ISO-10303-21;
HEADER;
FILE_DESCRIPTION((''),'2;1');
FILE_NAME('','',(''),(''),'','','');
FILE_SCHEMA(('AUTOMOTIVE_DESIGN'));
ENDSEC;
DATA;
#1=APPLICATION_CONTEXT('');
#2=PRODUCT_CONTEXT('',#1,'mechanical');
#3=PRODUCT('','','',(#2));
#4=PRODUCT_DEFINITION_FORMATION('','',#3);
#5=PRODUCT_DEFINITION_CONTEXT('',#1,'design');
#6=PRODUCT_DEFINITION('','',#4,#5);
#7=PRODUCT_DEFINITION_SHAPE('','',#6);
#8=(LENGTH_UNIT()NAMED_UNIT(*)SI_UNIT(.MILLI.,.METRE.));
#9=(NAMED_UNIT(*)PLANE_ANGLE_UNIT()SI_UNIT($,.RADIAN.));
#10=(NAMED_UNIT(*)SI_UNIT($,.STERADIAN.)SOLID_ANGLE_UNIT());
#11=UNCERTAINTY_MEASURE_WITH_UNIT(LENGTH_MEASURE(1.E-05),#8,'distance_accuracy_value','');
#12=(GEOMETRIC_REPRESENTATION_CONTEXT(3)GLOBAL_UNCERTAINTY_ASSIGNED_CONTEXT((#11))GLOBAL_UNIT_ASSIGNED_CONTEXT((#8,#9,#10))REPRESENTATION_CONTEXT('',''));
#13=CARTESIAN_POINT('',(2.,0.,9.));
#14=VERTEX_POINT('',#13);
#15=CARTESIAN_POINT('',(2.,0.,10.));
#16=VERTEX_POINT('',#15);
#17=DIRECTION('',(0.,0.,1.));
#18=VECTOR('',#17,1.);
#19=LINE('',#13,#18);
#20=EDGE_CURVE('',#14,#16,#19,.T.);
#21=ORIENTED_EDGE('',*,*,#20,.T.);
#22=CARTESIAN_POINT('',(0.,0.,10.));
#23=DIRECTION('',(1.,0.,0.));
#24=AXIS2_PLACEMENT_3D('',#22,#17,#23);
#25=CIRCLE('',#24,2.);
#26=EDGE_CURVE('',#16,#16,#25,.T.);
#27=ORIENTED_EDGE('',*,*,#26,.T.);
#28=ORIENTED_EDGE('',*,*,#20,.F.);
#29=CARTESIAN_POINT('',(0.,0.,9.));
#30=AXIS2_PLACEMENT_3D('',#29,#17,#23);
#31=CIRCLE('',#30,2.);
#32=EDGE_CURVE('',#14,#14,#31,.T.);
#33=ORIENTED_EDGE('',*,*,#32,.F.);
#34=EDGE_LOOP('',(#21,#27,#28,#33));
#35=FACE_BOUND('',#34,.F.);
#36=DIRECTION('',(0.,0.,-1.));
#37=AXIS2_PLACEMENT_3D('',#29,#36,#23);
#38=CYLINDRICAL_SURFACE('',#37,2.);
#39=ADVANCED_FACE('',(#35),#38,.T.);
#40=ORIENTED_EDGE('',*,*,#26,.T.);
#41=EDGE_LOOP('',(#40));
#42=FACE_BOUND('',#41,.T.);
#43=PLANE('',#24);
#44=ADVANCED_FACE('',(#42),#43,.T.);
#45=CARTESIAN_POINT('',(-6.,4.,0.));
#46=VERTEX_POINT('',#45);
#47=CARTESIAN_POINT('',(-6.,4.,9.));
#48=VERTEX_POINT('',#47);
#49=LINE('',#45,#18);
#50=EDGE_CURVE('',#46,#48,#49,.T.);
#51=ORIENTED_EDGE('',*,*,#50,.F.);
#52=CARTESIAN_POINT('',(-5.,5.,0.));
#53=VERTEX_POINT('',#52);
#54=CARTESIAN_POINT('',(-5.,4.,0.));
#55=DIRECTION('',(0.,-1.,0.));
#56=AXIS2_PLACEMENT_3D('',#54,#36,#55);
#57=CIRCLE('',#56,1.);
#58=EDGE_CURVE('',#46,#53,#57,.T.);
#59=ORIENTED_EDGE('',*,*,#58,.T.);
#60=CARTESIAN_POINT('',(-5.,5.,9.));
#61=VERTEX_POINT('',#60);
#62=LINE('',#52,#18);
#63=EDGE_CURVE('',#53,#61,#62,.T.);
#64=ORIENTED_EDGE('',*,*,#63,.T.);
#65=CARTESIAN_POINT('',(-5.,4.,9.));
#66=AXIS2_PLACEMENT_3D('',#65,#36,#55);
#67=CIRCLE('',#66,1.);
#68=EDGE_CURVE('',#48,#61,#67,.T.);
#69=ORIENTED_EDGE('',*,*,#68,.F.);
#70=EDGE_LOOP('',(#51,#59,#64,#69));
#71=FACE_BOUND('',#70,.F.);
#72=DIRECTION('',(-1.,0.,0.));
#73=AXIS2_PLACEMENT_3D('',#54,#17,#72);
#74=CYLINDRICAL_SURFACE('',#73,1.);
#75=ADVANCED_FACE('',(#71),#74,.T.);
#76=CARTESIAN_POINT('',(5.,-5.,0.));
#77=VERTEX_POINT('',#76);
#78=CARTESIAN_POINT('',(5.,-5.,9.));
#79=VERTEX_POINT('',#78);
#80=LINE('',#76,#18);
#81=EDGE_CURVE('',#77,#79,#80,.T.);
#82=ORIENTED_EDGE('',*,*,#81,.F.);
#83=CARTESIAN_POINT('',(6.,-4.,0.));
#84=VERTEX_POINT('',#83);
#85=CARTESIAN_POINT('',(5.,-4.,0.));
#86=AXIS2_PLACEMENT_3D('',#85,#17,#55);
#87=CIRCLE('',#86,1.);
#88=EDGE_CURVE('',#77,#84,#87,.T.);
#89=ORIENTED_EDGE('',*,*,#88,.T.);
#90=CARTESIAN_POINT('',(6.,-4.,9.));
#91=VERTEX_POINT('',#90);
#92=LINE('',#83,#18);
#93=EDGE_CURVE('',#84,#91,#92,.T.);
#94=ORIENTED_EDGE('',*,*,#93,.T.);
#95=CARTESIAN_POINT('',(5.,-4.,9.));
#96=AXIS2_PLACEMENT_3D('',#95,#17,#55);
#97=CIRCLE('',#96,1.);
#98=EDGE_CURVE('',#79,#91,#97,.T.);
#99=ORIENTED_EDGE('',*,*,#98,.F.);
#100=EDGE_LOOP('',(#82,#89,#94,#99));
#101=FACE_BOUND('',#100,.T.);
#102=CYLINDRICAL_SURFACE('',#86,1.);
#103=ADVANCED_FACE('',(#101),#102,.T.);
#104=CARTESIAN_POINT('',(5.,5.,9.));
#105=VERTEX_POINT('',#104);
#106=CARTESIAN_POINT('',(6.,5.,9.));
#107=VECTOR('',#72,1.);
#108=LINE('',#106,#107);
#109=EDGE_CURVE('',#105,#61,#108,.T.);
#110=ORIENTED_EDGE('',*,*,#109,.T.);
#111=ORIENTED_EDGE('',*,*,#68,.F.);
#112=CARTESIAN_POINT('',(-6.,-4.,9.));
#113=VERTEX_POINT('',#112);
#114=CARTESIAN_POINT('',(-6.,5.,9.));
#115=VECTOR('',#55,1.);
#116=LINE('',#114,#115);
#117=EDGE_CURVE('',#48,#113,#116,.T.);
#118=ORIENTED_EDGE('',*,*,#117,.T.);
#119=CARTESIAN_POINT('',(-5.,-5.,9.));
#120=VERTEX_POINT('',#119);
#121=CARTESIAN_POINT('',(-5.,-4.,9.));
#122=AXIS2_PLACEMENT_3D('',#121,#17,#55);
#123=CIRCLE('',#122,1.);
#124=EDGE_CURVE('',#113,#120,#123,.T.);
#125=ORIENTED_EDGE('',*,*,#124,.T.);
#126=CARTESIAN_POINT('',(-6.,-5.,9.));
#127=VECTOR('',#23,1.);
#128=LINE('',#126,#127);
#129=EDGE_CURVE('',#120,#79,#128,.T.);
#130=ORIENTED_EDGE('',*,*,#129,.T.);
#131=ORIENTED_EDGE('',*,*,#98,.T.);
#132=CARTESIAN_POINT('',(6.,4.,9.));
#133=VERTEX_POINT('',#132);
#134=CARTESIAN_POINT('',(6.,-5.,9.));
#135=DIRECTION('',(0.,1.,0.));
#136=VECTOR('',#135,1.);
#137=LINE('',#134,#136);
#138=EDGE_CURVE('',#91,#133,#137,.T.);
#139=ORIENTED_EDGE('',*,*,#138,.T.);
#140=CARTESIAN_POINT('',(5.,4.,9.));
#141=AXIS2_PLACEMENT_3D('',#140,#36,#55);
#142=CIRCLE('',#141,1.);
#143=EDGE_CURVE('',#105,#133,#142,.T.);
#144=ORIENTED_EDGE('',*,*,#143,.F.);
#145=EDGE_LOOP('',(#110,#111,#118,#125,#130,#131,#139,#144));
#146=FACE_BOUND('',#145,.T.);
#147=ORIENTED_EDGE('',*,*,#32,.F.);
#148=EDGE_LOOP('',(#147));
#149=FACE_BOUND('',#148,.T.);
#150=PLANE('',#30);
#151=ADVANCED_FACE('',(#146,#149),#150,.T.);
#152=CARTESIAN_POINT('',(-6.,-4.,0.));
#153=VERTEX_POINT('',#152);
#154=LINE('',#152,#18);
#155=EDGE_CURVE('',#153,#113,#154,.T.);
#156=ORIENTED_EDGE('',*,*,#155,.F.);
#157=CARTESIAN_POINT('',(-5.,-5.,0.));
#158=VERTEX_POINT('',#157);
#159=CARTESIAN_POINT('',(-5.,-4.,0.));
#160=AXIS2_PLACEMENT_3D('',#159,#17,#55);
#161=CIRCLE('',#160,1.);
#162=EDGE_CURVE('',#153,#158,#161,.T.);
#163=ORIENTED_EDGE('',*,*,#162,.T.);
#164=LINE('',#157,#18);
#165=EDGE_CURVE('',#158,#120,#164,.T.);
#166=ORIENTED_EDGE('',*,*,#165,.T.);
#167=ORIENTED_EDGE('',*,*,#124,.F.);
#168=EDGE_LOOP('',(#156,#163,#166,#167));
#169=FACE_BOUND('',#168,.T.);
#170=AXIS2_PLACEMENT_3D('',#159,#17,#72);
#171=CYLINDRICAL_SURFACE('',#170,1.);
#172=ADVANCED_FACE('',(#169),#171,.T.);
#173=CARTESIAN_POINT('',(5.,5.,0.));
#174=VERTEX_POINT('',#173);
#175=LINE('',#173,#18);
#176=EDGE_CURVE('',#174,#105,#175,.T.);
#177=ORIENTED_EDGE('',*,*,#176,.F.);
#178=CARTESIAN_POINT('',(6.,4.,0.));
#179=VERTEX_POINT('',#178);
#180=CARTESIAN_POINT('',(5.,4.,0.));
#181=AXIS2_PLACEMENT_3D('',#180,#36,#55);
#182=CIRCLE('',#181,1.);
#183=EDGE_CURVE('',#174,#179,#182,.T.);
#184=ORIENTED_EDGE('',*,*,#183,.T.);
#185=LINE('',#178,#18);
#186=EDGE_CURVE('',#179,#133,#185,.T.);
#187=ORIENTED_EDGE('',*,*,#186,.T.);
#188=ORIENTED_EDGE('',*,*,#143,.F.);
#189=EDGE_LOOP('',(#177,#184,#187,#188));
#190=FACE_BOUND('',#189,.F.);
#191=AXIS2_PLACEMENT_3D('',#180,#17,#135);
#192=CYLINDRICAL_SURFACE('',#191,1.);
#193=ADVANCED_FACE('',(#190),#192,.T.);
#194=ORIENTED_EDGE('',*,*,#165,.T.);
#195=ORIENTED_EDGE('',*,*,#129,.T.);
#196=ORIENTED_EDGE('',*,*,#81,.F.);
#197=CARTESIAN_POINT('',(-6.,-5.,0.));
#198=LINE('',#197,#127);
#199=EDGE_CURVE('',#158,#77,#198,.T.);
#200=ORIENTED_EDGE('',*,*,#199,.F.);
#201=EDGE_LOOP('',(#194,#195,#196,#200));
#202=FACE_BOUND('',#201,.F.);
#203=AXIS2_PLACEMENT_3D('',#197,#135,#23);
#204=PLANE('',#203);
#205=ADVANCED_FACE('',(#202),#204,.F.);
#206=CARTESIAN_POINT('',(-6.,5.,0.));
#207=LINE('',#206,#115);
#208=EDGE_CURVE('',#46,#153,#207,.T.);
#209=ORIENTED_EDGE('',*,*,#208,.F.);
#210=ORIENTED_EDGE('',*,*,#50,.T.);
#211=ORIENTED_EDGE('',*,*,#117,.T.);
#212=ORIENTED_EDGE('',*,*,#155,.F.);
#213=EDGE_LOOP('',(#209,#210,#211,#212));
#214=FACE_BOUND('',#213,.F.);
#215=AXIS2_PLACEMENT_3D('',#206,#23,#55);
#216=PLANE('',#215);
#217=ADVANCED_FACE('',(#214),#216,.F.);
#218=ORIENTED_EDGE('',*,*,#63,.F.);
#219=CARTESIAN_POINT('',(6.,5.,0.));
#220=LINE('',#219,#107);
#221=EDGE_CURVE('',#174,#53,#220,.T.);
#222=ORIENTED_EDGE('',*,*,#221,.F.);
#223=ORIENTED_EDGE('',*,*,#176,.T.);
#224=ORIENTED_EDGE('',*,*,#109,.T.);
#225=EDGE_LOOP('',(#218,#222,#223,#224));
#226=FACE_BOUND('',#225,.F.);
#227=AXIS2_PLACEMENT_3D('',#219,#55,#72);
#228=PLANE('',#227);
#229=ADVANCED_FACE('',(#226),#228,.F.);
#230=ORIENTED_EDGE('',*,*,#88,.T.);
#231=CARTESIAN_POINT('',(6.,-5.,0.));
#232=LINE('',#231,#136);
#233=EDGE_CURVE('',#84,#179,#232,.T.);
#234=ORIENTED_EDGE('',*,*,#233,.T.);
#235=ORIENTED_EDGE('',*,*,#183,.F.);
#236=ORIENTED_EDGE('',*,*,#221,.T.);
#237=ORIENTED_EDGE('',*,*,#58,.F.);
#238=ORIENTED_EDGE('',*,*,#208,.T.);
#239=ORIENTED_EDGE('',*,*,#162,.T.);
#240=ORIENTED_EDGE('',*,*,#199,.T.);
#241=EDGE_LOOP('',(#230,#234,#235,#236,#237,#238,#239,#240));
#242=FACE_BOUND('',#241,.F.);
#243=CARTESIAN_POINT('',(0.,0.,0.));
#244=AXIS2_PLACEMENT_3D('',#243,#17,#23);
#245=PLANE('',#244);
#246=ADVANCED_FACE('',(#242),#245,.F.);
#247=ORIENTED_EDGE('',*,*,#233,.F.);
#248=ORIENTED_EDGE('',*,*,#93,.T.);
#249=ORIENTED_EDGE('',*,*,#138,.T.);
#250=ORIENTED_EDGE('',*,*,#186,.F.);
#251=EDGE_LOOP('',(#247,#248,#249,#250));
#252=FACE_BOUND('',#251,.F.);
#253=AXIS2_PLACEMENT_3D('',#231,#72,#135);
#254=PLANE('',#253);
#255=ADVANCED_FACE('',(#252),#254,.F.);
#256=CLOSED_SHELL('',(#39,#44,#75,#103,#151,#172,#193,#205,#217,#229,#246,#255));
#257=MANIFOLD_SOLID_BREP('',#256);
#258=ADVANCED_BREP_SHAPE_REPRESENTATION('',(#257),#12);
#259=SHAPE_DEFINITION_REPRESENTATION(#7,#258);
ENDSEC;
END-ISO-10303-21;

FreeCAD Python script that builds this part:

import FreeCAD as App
import Part
import Sketcher

V = App.Vector
Q = App.Units.Quantity


def edges_at(feature, points):
    """Names of the edges that pass closest to the given points."""
    edges = feature.Shape.Edges
    near = lambda p: min(range(len(edges)), key=lambda i: edges[i].distToShape(Part.Vertex(*p))[0])
    return sorted({f"Edge{near(p) + 1}" for p in points})

doc = App.newDocument("Part")
params = doc.addObject("Spreadsheet::Sheet", "Params")
for row, (alias, value) in enumerate([
    ("sketch1_width", "12 mm"),
    ("sketch1_height", "10 mm"),
    ("pad1_length", "9 mm"),
    ("sketch2_diameter", "4 mm"),
    ("pad2_length", "1 mm"),
    ("fillet_radius", "1 mm"),
], start=1):
    params.set(f"A{row}", alias)
    params.set(f"B{row}", "=" + value)
    params.setAlias(f"B{row}", alias)

body = doc.addObject("PartDesign::Body", "Body")

# Sketch on XY plane
sketch1 = body.newObject("Sketcher::SketchObject", "Sketch")
sketch1.AttachmentSupport = (doc.getObject("XY_Plane"), [""])
sketch1.MapMode = "FlatFace"
sketch1.addGeometry(Part.LineSegment(V(-6, 5, 0), V(-6, -5, 0)), False)
sketch1.addGeometry(Part.LineSegment(V(-6, -5, 0), V(6, -5, 0)), False)
sketch1.addGeometry(Part.LineSegment(V(6, -5, 0), V(6, 5, 0)), False)
sketch1.addGeometry(Part.LineSegment(V(6, 5, 0), V(-6, 5, 0)), False)
sketch1.addConstraint(Sketcher.Constraint("Coincident", 0, 2, 1, 1))
sketch1.addConstraint(Sketcher.Constraint("Coincident", 1, 2, 2, 1))
sketch1.addConstraint(Sketcher.Constraint("Coincident", 2, 2, 3, 1))
sketch1.addConstraint(Sketcher.Constraint("Coincident", 3, 2, 0, 1))
sketch1.addConstraint(Sketcher.Constraint("Vertical", 0))
sketch1.addConstraint(Sketcher.Constraint("Horizontal", 1))
sketch1.addConstraint(Sketcher.Constraint("Vertical", 2))
sketch1.addConstraint(Sketcher.Constraint("Horizontal", 3))
sketch1.addConstraint(Sketcher.Constraint("Symmetric", 0, 2, 2, 2, -1, 1))
sketch1.addConstraint(Sketcher.Constraint("DistanceX", 1, 1, 1, 2, Q("12 mm")))
sketch1.addConstraint(Sketcher.Constraint("DistanceY", 0, 2, 0, 1, Q("10 mm")))
sketch1.setExpression("Constraints[9]", "Params.sketch1_width")
sketch1.setExpression("Constraints[10]", "Params.sketch1_height")
pad1 = body.newObject("PartDesign::Pad", "Pad")
pad1.Profile = sketch1
pad1.setExpression("Length", "Params.pad1_length")

# Sketch on XY plane
sketch2 = body.newObject("Sketcher::SketchObject", "Sketch001")
sketch2.AttachmentSupport = (doc.getObject("XY_Plane"), [""])
sketch2.MapMode = "FlatFace"
sketch2.AttachmentOffset = App.Placement(V(0, 0, 9), App.Rotation())
sketch2.addGeometry(Part.Circle(V(0, 0, 0), V(0, 0, 1), 2), False)
sketch2.addConstraint(Sketcher.Constraint("Coincident", 0, 3, -1, 1))
sketch2.addConstraint(Sketcher.Constraint("Diameter", 0, Q("4 mm")))
sketch2.setExpression("Constraints[1]", "Params.sketch2_diameter")
pad2 = body.newObject("PartDesign::Pad", "Pad001")
pad2.Profile = sketch2
pad2.setExpression("Length", "Params.pad2_length")
doc.recompute()

fillet = body.newObject("PartDesign::Fillet", "Fillet")
fillet.Base = (pad2, edges_at(pad2, [
    (-6, 5, 4.5),
    (6, 5, 4.5),
    (6, -5, 4.5),
    (-6, -5, 4.5),
]))
fillet.setExpression("Radius", "Params.fillet_radius")

doc.recompute()
